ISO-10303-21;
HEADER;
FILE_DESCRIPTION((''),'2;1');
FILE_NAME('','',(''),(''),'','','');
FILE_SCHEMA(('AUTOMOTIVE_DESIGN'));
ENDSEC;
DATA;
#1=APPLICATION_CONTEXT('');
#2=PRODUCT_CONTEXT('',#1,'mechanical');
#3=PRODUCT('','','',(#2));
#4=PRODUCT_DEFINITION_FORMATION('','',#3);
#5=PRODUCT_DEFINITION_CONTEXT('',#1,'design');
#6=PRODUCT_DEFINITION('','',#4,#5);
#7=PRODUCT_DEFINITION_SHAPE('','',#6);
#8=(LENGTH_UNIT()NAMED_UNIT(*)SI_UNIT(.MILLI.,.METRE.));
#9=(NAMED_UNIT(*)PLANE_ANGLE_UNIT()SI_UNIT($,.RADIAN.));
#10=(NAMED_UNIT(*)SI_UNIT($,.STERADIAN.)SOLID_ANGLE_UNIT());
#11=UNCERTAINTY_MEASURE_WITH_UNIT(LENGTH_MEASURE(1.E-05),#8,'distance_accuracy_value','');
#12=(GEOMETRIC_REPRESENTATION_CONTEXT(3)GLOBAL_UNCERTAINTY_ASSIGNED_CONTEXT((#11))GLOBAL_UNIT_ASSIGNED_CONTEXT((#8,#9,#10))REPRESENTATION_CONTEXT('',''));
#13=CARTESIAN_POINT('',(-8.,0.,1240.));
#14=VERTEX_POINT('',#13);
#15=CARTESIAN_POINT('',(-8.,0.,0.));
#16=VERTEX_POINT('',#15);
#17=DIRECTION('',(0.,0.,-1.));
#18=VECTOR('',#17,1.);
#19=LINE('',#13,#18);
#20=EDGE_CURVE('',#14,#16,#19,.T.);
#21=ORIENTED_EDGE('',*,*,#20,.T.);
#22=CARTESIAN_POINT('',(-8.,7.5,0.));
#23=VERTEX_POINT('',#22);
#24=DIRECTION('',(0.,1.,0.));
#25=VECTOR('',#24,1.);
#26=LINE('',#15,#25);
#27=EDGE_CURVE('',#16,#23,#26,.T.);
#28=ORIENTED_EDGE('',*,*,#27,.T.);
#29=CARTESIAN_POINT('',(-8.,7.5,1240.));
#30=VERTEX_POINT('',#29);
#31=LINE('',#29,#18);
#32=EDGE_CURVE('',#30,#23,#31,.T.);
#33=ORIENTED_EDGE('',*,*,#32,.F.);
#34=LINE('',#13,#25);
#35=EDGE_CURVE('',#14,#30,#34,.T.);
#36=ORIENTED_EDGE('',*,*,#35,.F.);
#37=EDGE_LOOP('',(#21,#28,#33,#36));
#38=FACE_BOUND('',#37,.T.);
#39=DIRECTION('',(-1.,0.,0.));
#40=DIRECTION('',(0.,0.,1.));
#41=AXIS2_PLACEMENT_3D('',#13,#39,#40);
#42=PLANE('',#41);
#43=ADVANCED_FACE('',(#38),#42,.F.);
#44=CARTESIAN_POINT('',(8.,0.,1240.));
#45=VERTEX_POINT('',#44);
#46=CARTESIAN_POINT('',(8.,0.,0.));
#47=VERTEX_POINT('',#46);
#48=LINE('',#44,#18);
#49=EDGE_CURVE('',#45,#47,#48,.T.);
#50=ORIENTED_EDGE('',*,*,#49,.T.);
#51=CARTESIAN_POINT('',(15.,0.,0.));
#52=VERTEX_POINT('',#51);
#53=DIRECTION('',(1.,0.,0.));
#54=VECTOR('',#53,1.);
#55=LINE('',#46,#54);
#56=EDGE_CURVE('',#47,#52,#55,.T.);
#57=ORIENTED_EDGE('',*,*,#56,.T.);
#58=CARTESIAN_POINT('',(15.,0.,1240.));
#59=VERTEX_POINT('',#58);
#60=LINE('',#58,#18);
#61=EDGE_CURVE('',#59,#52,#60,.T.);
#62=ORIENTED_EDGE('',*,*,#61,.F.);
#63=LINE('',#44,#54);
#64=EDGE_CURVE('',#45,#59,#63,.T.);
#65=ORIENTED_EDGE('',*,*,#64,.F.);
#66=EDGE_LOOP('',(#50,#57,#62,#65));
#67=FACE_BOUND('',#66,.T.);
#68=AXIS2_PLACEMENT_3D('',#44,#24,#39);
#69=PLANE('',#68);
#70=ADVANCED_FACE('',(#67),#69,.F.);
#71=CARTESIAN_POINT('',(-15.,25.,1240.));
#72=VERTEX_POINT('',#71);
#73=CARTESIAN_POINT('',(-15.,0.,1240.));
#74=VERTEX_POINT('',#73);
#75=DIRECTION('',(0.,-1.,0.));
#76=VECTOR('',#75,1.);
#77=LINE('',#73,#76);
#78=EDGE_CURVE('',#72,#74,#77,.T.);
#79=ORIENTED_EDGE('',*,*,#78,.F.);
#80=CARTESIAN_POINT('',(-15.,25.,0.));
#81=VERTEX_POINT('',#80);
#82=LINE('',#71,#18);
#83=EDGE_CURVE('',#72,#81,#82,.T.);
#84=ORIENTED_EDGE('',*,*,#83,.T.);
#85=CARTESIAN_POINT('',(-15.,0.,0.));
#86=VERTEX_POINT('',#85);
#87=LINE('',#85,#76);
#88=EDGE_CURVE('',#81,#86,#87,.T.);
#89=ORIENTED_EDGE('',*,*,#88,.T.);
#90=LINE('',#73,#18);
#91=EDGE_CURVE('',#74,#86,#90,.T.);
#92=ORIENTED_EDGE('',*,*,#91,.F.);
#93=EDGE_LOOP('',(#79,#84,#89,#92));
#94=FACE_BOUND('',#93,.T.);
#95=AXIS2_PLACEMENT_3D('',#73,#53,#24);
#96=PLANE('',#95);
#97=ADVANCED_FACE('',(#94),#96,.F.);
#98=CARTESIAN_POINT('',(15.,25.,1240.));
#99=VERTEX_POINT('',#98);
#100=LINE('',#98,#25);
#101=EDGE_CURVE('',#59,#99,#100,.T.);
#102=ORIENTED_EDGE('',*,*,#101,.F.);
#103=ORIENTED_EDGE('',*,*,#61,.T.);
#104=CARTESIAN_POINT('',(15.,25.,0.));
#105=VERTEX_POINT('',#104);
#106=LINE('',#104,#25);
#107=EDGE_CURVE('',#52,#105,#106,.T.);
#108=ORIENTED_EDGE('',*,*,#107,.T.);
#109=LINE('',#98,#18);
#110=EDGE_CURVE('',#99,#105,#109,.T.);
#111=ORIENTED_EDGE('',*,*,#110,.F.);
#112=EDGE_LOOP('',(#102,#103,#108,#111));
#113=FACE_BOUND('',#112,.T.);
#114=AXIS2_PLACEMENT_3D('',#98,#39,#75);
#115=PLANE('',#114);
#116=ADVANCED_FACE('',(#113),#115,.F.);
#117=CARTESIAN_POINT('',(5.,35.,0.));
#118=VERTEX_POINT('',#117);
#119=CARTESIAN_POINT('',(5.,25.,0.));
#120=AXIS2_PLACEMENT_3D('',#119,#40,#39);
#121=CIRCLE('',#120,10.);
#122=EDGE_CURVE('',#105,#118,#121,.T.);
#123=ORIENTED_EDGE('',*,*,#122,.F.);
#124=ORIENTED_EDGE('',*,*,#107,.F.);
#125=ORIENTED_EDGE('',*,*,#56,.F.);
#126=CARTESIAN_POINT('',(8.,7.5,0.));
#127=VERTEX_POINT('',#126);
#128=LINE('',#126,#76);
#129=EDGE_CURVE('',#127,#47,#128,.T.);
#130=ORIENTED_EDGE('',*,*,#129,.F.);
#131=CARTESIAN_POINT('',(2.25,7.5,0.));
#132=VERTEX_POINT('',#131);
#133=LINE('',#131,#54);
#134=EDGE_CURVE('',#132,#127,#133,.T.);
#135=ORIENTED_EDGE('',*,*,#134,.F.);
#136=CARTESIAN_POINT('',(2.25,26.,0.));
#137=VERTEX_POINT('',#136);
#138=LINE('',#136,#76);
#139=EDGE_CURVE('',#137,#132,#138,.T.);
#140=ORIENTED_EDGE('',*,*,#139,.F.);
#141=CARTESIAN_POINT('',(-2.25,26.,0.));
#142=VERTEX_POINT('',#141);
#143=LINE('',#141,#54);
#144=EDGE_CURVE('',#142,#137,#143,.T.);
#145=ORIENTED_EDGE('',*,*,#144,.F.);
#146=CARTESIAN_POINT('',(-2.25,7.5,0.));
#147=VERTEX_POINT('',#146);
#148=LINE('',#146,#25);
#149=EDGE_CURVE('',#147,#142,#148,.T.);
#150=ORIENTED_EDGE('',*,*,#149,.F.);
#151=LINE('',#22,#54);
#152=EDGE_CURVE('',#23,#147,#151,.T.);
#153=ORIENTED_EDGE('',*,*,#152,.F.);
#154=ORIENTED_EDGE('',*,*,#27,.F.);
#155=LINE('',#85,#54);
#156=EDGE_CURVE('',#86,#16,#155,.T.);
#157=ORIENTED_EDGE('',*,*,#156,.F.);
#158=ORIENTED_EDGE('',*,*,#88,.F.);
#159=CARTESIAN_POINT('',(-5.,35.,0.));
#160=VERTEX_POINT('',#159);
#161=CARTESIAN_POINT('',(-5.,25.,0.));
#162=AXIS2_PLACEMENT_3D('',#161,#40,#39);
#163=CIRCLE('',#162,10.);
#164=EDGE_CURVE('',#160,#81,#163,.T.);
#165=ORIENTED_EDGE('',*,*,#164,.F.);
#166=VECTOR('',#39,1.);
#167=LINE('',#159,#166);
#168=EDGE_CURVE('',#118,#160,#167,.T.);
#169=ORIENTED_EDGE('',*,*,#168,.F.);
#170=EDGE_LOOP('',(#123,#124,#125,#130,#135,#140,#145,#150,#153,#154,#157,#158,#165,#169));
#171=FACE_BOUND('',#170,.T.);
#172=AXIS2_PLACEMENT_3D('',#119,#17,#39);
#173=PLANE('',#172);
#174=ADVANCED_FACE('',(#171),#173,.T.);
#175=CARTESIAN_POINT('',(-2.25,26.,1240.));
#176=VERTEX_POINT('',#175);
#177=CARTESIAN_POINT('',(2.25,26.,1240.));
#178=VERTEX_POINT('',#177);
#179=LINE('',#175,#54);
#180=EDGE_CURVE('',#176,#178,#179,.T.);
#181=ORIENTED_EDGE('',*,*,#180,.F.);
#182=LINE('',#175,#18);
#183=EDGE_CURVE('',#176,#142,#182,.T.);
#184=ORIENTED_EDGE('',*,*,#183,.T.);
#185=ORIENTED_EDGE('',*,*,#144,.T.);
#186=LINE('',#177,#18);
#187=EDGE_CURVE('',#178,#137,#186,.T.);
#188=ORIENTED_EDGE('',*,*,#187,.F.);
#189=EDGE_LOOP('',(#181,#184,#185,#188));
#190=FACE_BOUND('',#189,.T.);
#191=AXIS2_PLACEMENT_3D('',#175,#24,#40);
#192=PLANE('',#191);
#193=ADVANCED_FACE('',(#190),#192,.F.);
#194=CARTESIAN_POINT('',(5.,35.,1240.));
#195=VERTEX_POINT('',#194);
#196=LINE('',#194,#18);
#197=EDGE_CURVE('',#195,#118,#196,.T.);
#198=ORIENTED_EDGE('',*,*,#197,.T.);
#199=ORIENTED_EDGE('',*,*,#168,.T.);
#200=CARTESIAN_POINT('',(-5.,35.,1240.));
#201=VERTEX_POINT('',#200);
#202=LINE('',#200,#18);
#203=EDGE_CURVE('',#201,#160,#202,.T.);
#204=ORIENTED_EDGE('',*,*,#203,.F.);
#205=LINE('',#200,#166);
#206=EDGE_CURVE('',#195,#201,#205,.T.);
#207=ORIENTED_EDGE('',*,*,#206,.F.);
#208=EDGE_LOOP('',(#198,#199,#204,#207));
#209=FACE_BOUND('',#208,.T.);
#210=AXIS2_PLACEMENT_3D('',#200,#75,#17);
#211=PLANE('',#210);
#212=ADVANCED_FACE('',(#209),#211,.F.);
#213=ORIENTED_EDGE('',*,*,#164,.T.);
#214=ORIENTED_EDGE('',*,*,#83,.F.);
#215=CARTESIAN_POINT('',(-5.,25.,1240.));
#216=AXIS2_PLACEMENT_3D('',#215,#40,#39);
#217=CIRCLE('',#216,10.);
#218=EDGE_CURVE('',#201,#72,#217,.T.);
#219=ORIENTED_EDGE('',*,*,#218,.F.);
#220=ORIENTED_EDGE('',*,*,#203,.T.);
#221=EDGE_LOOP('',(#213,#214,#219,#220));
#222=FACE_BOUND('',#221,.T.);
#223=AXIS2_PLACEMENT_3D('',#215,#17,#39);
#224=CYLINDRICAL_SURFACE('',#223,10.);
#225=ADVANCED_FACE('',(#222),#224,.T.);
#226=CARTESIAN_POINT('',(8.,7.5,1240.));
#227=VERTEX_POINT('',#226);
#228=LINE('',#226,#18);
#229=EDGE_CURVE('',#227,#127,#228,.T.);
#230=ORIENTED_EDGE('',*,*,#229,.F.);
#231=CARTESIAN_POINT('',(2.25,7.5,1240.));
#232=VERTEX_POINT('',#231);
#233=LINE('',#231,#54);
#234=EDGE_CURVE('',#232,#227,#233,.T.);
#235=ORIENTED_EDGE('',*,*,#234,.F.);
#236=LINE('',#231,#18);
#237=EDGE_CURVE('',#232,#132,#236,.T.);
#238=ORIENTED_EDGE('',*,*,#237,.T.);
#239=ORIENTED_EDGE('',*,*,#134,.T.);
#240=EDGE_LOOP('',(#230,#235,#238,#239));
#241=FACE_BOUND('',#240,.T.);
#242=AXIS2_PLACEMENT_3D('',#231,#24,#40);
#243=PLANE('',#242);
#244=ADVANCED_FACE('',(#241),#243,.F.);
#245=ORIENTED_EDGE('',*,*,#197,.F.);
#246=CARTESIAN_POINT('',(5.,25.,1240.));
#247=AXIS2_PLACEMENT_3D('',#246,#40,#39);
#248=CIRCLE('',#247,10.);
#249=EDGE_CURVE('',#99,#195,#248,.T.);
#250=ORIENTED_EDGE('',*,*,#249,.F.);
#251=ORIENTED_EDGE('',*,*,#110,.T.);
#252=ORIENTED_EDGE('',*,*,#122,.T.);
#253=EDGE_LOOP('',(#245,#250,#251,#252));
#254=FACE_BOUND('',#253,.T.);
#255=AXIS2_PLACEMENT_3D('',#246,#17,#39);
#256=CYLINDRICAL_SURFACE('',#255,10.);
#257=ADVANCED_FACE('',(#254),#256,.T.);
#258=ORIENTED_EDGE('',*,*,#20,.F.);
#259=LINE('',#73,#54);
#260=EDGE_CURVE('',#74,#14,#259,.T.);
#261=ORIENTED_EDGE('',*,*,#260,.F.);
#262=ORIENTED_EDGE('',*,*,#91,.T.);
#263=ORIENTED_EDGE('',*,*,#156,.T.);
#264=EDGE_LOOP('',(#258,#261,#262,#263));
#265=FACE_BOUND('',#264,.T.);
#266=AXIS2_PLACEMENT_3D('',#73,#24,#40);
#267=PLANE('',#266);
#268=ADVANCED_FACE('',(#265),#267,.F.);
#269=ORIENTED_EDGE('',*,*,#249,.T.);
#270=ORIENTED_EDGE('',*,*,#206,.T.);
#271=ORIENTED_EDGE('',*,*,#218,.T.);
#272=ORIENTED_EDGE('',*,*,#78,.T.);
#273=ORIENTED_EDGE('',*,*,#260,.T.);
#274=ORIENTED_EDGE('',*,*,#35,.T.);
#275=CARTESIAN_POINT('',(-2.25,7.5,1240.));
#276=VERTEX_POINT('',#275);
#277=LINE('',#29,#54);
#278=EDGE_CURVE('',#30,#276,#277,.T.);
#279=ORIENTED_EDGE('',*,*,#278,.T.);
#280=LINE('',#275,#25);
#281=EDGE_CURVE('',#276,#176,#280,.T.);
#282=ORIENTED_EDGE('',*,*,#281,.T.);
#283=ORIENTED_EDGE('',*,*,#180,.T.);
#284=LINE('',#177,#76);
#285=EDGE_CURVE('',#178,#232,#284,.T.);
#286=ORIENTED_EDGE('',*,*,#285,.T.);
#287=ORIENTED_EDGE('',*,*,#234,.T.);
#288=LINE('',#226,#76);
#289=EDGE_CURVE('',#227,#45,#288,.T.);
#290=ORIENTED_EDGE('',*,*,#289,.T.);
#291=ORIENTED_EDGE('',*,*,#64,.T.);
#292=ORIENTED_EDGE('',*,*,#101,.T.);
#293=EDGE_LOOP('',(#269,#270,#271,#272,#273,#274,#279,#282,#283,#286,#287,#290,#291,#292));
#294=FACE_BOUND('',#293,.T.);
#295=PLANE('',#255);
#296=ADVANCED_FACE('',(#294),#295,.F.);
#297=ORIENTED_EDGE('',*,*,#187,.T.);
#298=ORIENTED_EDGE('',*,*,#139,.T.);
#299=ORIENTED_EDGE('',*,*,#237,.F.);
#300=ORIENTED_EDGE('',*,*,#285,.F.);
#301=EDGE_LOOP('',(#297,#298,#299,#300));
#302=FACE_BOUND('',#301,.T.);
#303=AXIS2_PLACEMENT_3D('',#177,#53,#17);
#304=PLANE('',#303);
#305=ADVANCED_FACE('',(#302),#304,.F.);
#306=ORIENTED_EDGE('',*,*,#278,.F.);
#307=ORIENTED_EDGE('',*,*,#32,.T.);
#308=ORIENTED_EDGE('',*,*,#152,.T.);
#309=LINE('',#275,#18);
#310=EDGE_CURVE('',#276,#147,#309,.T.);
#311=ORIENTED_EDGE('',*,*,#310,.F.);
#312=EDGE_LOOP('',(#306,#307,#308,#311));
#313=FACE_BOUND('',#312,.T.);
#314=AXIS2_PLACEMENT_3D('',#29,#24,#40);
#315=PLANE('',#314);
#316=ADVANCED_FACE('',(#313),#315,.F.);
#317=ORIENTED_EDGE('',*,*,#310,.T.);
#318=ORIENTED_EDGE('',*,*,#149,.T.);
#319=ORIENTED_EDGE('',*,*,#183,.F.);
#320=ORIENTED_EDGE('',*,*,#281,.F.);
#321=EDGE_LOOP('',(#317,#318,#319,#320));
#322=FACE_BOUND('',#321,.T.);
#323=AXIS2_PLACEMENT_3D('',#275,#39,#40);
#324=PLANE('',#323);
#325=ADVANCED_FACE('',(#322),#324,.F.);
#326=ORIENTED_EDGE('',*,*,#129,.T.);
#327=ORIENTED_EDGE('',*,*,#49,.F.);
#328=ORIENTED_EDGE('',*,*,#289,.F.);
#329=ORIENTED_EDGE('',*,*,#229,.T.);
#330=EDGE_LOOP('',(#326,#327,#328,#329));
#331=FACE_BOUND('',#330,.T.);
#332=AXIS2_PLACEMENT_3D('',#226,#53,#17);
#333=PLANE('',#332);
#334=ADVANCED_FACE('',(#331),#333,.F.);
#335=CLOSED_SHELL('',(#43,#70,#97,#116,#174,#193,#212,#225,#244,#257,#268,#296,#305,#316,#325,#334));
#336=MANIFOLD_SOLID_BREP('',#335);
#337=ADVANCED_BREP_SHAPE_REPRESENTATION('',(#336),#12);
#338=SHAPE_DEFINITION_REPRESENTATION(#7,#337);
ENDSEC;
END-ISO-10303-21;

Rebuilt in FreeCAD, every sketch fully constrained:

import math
import FreeCAD as App
import Part
import Sketcher

V = App.Vector

doc = App.newDocument("Part")
body = doc.addObject("PartDesign::Body", "Body")

# Sketch on XY plane
sketch1 = body.newObject("Sketcher::SketchObject", "Sketch")
sketch1.AttachmentSupport = (doc.getObject("XY_Plane"), [""])
sketch1.MapMode = "FlatFace"
sketch1.addGeometry([
    Part.LineSegment(V(-15, 25, 0), V(-15, 0, 0)),  # 0
    Part.LineSegment(V(-15, 0, 0), V(-8, 0, 0)),  # 1
    Part.LineSegment(V(-8, 0, 0), V(-8, 7.5, 0)),  # 2
    Part.LineSegment(V(-8, 7.5, 0), V(-2.2, 7.5, 0)),  # 3
    Part.LineSegment(V(-2.2, 7.5, 0), V(-2.2, 26, 0)),  # 4
    Part.LineSegment(V(-2.2, 26, 0), V(2.2, 26, 0)),  # 5
    Part.LineSegment(V(2.2, 26, 0), V(2.2, 7.5, 0)),  # 6
    Part.LineSegment(V(2.2, 7.5, 0), V(8, 7.5, 0)),  # 7
    Part.LineSegment(V(8, 7.5, 0), V(8, 0, 0)),  # 8
    Part.LineSegment(V(8, 0, 0), V(15, 0, 0)),  # 9
    Part.LineSegment(V(15, 0, 0), V(15, 25, 0)),  # 10
    Part.ArcOfCircle(Part.Circle(V(5, 25, 0), V(0, 0, 1), 10), math.radians(0), math.radians(90)),  # 11
    Part.LineSegment(V(5, 35, 0), V(-5, 35, 0)),  # 12
    Part.ArcOfCircle(Part.Circle(V(-5, 25, 0), V(0, 0, 1), 10), math.radians(90), math.radians(180)),  # 13
], False)
sketch1.addConstraint([
    Sketcher.Constraint("Coincident", 0, 2, 1, 1),
    Sketcher.Constraint("Coincident", 1, 2, 2, 1),
    Sketcher.Constraint("Coincident", 2, 2, 3, 1),
    Sketcher.Constraint("Coincident", 3, 2, 4, 1),
    Sketcher.Constraint("Coincident", 4, 2, 5, 1),
    Sketcher.Constraint("Coincident", 5, 2, 6, 1),
    Sketcher.Constraint("Coincident", 6, 2, 7, 1),
    Sketcher.Constraint("Coincident", 7, 2, 8, 1),
    Sketcher.Constraint("Coincident", 8, 2, 9, 1),
    Sketcher.Constraint("Coincident", 9, 2, 10, 1),
    Sketcher.Constraint("Tangent", 10, 2, 11, 1),
    Sketcher.Constraint("Tangent", 11, 2, 12, 1),
    Sketcher.Constraint("Tangent", 12, 2, 13, 1),
    Sketcher.Constraint("Tangent", 13, 2, 0, 1),
    Sketcher.Constraint("Vertical", 0),
    Sketcher.Constraint("Horizontal", 1),
    Sketcher.Constraint("Vertical", 2),
    Sketcher.Constraint("Horizontal", 3),
    Sketcher.Constraint("Vertical", 4),
    Sketcher.Constraint("Horizontal", 5),
    Sketcher.Constraint("Vertical", 6),
    Sketcher.Constraint("Horizontal", 7),
    Sketcher.Constraint("Vertical", 8),
    Sketcher.Constraint("Horizontal", 9),
    Sketcher.Constraint("Vertical", 10),
    Sketcher.Constraint("Horizontal", 12),
    Sketcher.Constraint("Equal", 11, 13),
    Sketcher.Constraint("Symmetric", 1, 2, 8, 2, -1, 1),
    Sketcher.Constraint("Symmetric", 3, 2, 6, 2, -2),
    Sketcher.Constraint("Symmetric", 0, 2, 9, 2, -2),
    Sketcher.Constraint("Radius", 11, 10.0),
    Sketcher.Constraint("DistanceX", 1, 1, 1, 2, 7.0),
    Sketcher.Constraint("DistanceX", 12, 2, 12, 1, 10.0),
    Sketcher.Constraint("DistanceY", 0, 2, 0, 1, 25.0),
    Sketcher.Constraint("DistanceX", 5, 1, 5, 2, 4.5),
    Sketcher.Constraint("DistanceY", 2, 1, 2, 2, 7.5),
    Sketcher.Constraint("DistanceY", 4, 1, 4, 2, 18.5),
])
pad1 = body.newObject("PartDesign::Pad", "Pad")
pad1.Profile = sketch1
pad1.Length = 1240

doc.recompute()
